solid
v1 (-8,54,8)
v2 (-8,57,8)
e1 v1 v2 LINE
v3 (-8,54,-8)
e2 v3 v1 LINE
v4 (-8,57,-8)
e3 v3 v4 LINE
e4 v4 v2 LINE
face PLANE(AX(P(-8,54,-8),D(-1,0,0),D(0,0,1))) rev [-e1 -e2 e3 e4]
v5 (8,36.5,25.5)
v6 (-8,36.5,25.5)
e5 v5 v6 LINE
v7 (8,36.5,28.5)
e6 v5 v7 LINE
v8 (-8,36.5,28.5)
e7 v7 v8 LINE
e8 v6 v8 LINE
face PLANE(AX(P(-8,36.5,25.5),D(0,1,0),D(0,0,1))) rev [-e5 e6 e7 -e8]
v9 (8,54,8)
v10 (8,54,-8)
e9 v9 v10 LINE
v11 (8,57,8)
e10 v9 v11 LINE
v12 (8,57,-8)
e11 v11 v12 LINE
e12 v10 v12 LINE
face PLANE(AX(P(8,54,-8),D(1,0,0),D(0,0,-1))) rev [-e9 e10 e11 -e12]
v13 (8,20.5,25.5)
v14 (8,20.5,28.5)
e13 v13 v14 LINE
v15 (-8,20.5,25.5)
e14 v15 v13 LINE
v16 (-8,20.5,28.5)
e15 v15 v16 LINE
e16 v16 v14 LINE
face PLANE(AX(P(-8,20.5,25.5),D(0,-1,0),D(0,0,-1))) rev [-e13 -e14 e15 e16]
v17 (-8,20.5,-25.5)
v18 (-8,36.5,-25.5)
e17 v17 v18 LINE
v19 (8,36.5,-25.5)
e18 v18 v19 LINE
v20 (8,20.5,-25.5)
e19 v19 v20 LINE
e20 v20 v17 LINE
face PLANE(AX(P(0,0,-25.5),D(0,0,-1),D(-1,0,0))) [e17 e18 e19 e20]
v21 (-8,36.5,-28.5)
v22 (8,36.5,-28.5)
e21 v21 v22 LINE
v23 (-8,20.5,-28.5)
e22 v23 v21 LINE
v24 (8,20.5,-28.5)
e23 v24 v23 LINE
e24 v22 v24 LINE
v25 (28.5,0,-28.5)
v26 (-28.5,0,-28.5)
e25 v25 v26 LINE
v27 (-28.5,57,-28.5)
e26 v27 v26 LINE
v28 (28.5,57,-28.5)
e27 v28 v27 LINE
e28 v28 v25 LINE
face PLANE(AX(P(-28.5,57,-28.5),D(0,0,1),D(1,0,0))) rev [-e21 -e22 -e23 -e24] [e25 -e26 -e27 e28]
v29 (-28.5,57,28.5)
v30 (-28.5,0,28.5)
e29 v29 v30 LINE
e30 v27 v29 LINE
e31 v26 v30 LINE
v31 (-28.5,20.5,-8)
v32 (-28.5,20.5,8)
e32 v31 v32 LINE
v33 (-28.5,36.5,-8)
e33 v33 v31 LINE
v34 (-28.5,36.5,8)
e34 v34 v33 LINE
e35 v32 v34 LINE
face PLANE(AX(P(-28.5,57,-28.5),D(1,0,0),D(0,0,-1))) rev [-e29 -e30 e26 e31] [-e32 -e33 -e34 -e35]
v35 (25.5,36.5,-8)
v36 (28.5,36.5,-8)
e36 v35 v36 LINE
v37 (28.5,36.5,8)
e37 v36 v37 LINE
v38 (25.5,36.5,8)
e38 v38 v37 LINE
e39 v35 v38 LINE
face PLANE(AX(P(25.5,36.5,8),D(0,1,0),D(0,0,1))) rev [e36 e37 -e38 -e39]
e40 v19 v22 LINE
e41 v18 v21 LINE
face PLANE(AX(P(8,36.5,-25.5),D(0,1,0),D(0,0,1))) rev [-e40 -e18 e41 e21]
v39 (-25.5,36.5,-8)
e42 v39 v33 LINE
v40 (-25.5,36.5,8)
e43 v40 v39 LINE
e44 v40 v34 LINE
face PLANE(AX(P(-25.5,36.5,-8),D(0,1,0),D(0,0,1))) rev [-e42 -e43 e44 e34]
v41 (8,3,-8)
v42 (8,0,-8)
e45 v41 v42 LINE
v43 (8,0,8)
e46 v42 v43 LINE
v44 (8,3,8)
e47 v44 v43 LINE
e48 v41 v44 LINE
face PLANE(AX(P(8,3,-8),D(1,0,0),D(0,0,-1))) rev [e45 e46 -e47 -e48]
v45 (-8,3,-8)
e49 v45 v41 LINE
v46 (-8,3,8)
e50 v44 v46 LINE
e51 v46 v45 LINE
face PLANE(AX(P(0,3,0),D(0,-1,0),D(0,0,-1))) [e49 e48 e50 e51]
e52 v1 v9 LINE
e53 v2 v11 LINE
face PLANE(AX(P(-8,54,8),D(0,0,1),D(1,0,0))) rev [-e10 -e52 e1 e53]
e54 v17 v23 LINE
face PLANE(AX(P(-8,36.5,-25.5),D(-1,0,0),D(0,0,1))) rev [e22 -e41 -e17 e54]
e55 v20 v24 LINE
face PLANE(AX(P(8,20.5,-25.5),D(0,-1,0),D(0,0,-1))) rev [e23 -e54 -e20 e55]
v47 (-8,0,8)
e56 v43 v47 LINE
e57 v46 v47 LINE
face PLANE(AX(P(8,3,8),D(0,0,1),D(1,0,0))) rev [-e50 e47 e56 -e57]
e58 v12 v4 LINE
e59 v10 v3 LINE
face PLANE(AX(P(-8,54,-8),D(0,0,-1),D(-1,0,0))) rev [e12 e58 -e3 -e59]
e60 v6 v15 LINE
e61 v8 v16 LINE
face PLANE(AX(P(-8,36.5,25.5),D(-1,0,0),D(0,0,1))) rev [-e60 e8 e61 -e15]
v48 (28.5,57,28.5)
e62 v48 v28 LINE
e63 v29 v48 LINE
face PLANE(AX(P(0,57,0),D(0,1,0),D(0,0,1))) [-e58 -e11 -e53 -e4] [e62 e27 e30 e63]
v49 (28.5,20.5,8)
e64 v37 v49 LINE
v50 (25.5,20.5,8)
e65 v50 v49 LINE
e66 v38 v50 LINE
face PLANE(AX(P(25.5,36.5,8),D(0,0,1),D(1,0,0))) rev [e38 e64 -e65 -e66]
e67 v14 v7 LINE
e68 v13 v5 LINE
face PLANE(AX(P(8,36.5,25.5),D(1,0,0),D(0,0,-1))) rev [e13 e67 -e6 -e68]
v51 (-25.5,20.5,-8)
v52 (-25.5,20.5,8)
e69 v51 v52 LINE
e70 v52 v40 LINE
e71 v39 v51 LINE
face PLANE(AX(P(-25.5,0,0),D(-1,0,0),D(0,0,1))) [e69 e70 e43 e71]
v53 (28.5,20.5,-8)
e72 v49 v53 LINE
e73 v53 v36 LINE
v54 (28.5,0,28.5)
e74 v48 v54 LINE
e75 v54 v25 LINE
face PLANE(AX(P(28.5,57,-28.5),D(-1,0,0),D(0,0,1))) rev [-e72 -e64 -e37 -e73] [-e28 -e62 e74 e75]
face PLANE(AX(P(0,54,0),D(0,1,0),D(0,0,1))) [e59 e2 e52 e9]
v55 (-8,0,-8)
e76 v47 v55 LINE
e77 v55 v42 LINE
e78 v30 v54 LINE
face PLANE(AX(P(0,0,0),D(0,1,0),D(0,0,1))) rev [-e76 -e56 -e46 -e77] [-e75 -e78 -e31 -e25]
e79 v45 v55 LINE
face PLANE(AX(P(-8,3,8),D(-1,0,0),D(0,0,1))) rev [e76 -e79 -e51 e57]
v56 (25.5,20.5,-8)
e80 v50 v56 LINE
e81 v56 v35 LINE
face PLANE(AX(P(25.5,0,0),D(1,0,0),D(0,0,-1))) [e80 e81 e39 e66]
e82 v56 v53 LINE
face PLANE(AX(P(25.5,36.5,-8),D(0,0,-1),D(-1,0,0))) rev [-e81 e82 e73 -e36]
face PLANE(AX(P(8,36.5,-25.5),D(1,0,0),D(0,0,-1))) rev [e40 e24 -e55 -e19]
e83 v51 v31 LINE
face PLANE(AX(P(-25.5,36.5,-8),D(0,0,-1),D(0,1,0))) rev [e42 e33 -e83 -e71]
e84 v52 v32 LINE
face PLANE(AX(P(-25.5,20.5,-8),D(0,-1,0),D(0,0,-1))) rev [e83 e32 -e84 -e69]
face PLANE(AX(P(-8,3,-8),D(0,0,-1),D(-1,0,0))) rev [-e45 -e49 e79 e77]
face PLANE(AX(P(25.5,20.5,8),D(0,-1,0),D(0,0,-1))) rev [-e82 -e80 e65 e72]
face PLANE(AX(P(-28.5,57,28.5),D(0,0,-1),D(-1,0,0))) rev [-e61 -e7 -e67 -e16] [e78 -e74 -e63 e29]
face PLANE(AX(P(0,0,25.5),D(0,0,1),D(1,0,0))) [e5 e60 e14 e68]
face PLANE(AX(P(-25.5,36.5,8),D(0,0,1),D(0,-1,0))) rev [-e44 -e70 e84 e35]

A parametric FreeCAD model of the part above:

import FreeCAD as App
import Part
import Sketcher
from FreeCAD import Vector
Q = App.Units.Quantity

doc = App.newDocument("Part")
body = doc.addObject("PartDesign::Body", "Body")

# Sketch on XZ plane
sketch1 = doc.addObject("Sketcher::SketchObject", "Sketch")
body.addObject(sketch1)
sketch1.AttachmentSupport = (doc.XZ_Plane, [""])
sketch1.MapMode = "FlatFace"
sketch1.addGeometry([
    Part.LineSegment(Vector(-28, -28, 0), Vector(-28, 28, 0)),
    Part.LineSegment(Vector(-28, 28, 0), Vector(28, 28, 0)),
    Part.LineSegment(Vector(28, 28, 0), Vector(28, -28, 0)),
    Part.LineSegment(Vector(28, -28, 0), Vector(-28, -28, 0)),
], False)
sketch1.addConstraint([
    Sketcher.Constraint("Coincident", 0, 2, 1, 1),
    Sketcher.Constraint("Coincident", 1, 2, 2, 1),
    Sketcher.Constraint("Coincident", 2, 2, 3, 1),
    Sketcher.Constraint("Coincident", 3, 2, 0, 1),
    Sketcher.Constraint("Vertical", 0),
    Sketcher.Constraint("Horizontal", 1),
    Sketcher.Constraint("Vertical", 2),
    Sketcher.Constraint("Horizontal", 3),
    Sketcher.Constraint("Symmetric", 0, 2, 2, 2, -1, 1),
    Sketcher.Constraint("Equal", 3, 0),
    Sketcher.Constraint("DistanceX", 1, 1, 1, 2, Q("57 mm")),
])
pad1 = doc.addObject("PartDesign::Pad", "Pad")
body.addObject(pad1)
pad1.Profile = sketch1
pad1.Length = 57
pad1.Reversed = True

# Sketch on XY plane
sketch2 = doc.addObject("Sketcher::SketchObject", "Sketch001")
body.addObject(sketch2)
sketch2.AttachmentSupport = (doc.XY_Plane, [""])
sketch2.MapMode = "FlatFace"
sketch2.AttachmentOffset = App.Placement(Vector(0, 0, 28.5), App.Rotation())
sketch2.addGeometry([
    Part.LineSegment(Vector(-8, 36, 0), Vector(-8, 20, 0)),
    Part.LineSegment(Vector(-8, 20, 0), Vector(8, 20, 0)),
    Part.LineSegment(Vector(8, 20, 0), Vector(8, 36, 0)),
    Part.LineSegment(Vector(8, 36, 0), Vector(-8, 36, 0)),
], False)
sketch2.addConstraint([
    Sketcher.Constraint("Coincident", 0, 2, 1, 1),
    Sketcher.Constraint("Coincident", 1, 2, 2, 1),
    Sketcher.Constraint("Coincident", 2, 2, 3, 1),
    Sketcher.Constraint("Coincident", 3, 2, 0, 1),
    Sketcher.Constraint("Vertical", 0),
    Sketcher.Constraint("Horizontal", 1),
    Sketcher.Constraint("Vertical", 2),
    Sketcher.Constraint("Horizontal", 3),
    Sketcher.Constraint("Equal", 3, 0),
    Sketcher.Constraint("DistanceX", 1, 1, 1, 2, Q("16 mm")),
    Sketcher.Constraint("DistanceX", 0, 2, -1, 1, Q("8 mm")),
    Sketcher.Constraint("DistanceY", -1, 1, 0, 2, Q("20.5 mm")),
])
pocket1 = doc.addObject("PartDesign::Pocket", "Pocket")
body.addObject(pocket1)
pocket1.Profile = sketch2
pocket1.Length = 3

# Sketch on YZ plane
sketch3 = doc.addObject("Sketcher::SketchObject", "Sketch002")
body.addObject(sketch3)
sketch3.AttachmentSupport = (doc.YZ_Plane, [""])
sketch3.MapMode = "FlatFace"
sketch3.AttachmentOffset = App.Placement(Vector(0, 0, 28.5), App.Rotation())
sketch3.addGeometry([
    Part.LineSegment(Vector(36, 8, 0), Vector(20, 8, 0)),
    Part.LineSegment(Vector(20, 8, 0), Vector(20, -8, 0)),
    Part.LineSegment(Vector(20, -8, 0), Vector(36, -8, 0)),
    Part.LineSegment(Vector(36, -8, 0), Vector(36, 8, 0)),
], False)
sketch3.addConstraint([
    Sketcher.Constraint("Coincident", 0, 2, 1, 1),
    Sketcher.Constraint("Coincident", 1, 2, 2, 1),
    Sketcher.Constraint("Coincident", 2, 2, 3, 1),
    Sketcher.Constraint("Coincident", 3, 2, 0, 1),
    Sketcher.Constraint("Horizontal", 0),
    Sketcher.Constraint("Vertical", 1),
    Sketcher.Constraint("Horizontal", 2),
    Sketcher.Constraint("Vertical", 3),
    Sketcher.Constraint("Equal", 2, 1),
    Sketcher.Constraint("DistanceX", 0, 2, 0, 1, Q("16 mm")),
    Sketcher.Constraint("DistanceY", -1, 1, 0, 2, Q("8 mm")),
    Sketcher.Constraint("DistanceX", -1, 1, 0, 2, Q("20.5 mm")),
])
pocket2 = doc.addObject("PartDesign::Pocket", "Pocket001")
body.addObject(pocket2)
pocket2.Profile = sketch3
pocket2.Length = 3

# Sketch on XY plane
sketch4 = doc.addObject("Sketcher::SketchObject", "Sketch003")
body.addObject(sketch4)
sketch4.AttachmentSupport = (doc.XY_Plane, [""])
sketch4.MapMode = "FlatFace"
sketch4.AttachmentOffset = App.Placement(Vector(0, 0, -28.5), App.Rotation())
sketch4.addGeometry([
    Part.LineSegment(Vector(8, 36, 0), Vector(8, 20, 0)),
    Part.LineSegment(Vector(8, 20, 0), Vector(-8, 20, 0)),
    Part.LineSegment(Vector(-8, 20, 0), Vector(-8, 36, 0)),
    Part.LineSegment(Vector(-8, 36, 0), Vector(8, 36, 0)),
], False)
sketch4.addConstraint([
    Sketcher.Constraint("Coincident", 0, 2, 1, 1),
    Sketcher.Constraint("Coincident", 1, 2, 2, 1),
    Sketcher.Constraint("Coincident", 2, 2, 3, 1),
    Sketcher.Constraint("Coincident", 3, 2, 0, 1),
    Sketcher.Constraint("Vertical", 0),
    Sketcher.Constraint("Horizontal", 1),
    Sketcher.Constraint("Vertical", 2),
    Sketcher.Constraint("Horizontal", 3),
    Sketcher.Constraint("Equal", 3, 0),
    Sketcher.Constraint("DistanceX", 1, 2, 1, 1, Q("16 mm")),
    Sketcher.Constraint("DistanceX", -1, 1, 0, 2, Q("8 mm")),
    Sketcher.Constraint("DistanceY", -1, 1, 0, 2, Q("20.5 mm")),
])
pocket3 = doc.addObject("PartDesign::Pocket", "Pocket002")
body.addObject(pocket3)
pocket3.Profile = sketch4
pocket3.Length = 3
pocket3.Reversed = True

# Sketch on YZ plane
sketch5 = doc.addObject("Sketcher::SketchObject", "Sketch004")
body.addObject(sketch5)
sketch5.AttachmentSupport = (doc.YZ_Plane, [""])
sketch5.MapMode = "FlatFace"
sketch5.AttachmentOffset = App.Placement(Vector(0, 0, -28.5), App.Rotation())
sketch5.addGeometry([
    Part.LineSegment(Vector(36, -8, 0), Vector(20, -8, 0)),
    Part.LineSegment(Vector(20, -8, 0), Vector(20, 8, 0)),
    Part.LineSegment(Vector(20, 8, 0), Vector(36, 8, 0)),
    Part.LineSegment(Vector(36, 8, 0), Vector(36, -8, 0)),
], False)
sketch5.addConstraint([
    Sketcher.Constraint("Coincident", 0, 2, 1, 1),
    Sketcher.Constraint("Coincident", 1, 2, 2, 1),
    Sketcher.Constraint("Coincident", 2, 2, 3, 1),
    Sketcher.Constraint("Coincident", 3, 2, 0, 1),
    Sketcher.Constraint("Horizontal", 0),
    Sketcher.Constraint("Vertical", 1),
    Sketcher.Constraint("Horizontal", 2),
    Sketcher.Constraint("Vertical", 3),
    Sketcher.Constraint("Equal", 2, 1),
    Sketcher.Constraint("DistanceX", 0, 2, 0, 1, Q("16 mm")),
    Sketcher.Constraint("DistanceY", 0, 2, -1, 1, Q("8 mm")),
    Sketcher.Constraint("DistanceX", -1, 1, 0, 2, Q("20.5 mm")),
])
pocket4 = doc.addObject("PartDesign::Pocket", "Pocket003")
body.addObject(pocket4)
pocket4.Profile = sketch5
pocket4.Length = 3
pocket4.Reversed = True

# Sketch on XZ plane
sketch6 = doc.addObject("Sketcher::SketchObject", "Sketch005")
body.addObject(sketch6)
sketch6.AttachmentSupport = (doc.XZ_Plane, [""])
sketch6.MapMode = "FlatFace"
sketch6.AttachmentOffset = App.Placement(Vector(0, 0, -57), App.Rotation())
sketch6.addGeometry([
    Part.LineSegment(Vector(-8, -8, 0), Vector(-8, 8, 0)),
    Part.LineSegment(Vector(-8, 8, 0), Vector(8, 8, 0)),
    Part.LineSegment(Vector(8, 8, 0), Vector(8, -8, 0)),
    Part.LineSegment(Vector(8, -8, 0), Vector(-8, -8, 0)),
], False)
sketch6.addConstraint([
    Sketcher.Constraint("Coincident", 0, 2, 1, 1),
    Sketcher.Constraint("Coincident", 1, 2, 2, 1),
    Sketcher.Constraint("Coincident", 2, 2, 3, 1),
    Sketcher.Constraint("Coincident", 3, 2, 0, 1),
    Sketcher.Constraint("Vertical", 0),
    Sketcher.Constraint("Horizontal", 1),
    Sketcher.Constraint("Vertical", 2),
    Sketcher.Constraint("Horizontal", 3),
    Sketcher.Constraint("Symmetric", 0, 2, 2, 2, -1, 1),
    Sketcher.Constraint("Equal", 3, 0),
    Sketcher.Constraint("DistanceX", 1, 1, 1, 2, Q("16 mm")),
])
pocket5 = doc.addObject("PartDesign::Pocket", "Pocket004")
body.addObject(pocket5)
pocket5.Profile = sketch6
pocket5.Length = 3
pocket5.Reversed = True

# Sketch on XZ plane
sketch7 = doc.addObject("Sketcher::SketchObject", "Sketch006")
body.addObject(sketch7)
sketch7.AttachmentSupport = (doc.XZ_Plane, [""])
sketch7.MapMode = "FlatFace"
sketch7.addGeometry([
    Part.LineSegment(Vector(-8, 8, 0), Vector(-8, -8, 0)),
    Part.LineSegment(Vector(-8, -8, 0), Vector(8, -8, 0)),
    Part.LineSegment(Vector(8, -8, 0), Vector(8, 8, 0)),
    Part.LineSegment(Vector(8, 8, 0), Vector(-8, 8, 0)),
], False)
sketch7.addConstraint([
    Sketcher.Constraint("Coincident", 0, 2, 1, 1),
    Sketcher.Constraint("Coincident", 1, 2, 2, 1),
    Sketcher.Constraint("Coincident", 2, 2, 3, 1),
    Sketcher.Constraint("Coincident", 3, 2, 0, 1),
    Sketcher.Constraint("Vertical", 0),
    Sketcher.Constraint("Horizontal", 1),
    Sketcher.Constraint("Vertical", 2),
    Sketcher.Constraint("Horizontal", 3),
    Sketcher.Constraint("Symmetric", 0, 2, 2, 2, -1, 1),
    Sketcher.Constraint("Equal", 3, 0),
    Sketcher.Constraint("DistanceX", 1, 1, 1, 2, Q("16 mm")),
])
pocket6 = doc.addObject("PartDesign::Pocket", "Pocket005")
body.addObject(pocket6)
pocket6.Profile = sketch7
pocket6.Length = 3

doc.recompute()
